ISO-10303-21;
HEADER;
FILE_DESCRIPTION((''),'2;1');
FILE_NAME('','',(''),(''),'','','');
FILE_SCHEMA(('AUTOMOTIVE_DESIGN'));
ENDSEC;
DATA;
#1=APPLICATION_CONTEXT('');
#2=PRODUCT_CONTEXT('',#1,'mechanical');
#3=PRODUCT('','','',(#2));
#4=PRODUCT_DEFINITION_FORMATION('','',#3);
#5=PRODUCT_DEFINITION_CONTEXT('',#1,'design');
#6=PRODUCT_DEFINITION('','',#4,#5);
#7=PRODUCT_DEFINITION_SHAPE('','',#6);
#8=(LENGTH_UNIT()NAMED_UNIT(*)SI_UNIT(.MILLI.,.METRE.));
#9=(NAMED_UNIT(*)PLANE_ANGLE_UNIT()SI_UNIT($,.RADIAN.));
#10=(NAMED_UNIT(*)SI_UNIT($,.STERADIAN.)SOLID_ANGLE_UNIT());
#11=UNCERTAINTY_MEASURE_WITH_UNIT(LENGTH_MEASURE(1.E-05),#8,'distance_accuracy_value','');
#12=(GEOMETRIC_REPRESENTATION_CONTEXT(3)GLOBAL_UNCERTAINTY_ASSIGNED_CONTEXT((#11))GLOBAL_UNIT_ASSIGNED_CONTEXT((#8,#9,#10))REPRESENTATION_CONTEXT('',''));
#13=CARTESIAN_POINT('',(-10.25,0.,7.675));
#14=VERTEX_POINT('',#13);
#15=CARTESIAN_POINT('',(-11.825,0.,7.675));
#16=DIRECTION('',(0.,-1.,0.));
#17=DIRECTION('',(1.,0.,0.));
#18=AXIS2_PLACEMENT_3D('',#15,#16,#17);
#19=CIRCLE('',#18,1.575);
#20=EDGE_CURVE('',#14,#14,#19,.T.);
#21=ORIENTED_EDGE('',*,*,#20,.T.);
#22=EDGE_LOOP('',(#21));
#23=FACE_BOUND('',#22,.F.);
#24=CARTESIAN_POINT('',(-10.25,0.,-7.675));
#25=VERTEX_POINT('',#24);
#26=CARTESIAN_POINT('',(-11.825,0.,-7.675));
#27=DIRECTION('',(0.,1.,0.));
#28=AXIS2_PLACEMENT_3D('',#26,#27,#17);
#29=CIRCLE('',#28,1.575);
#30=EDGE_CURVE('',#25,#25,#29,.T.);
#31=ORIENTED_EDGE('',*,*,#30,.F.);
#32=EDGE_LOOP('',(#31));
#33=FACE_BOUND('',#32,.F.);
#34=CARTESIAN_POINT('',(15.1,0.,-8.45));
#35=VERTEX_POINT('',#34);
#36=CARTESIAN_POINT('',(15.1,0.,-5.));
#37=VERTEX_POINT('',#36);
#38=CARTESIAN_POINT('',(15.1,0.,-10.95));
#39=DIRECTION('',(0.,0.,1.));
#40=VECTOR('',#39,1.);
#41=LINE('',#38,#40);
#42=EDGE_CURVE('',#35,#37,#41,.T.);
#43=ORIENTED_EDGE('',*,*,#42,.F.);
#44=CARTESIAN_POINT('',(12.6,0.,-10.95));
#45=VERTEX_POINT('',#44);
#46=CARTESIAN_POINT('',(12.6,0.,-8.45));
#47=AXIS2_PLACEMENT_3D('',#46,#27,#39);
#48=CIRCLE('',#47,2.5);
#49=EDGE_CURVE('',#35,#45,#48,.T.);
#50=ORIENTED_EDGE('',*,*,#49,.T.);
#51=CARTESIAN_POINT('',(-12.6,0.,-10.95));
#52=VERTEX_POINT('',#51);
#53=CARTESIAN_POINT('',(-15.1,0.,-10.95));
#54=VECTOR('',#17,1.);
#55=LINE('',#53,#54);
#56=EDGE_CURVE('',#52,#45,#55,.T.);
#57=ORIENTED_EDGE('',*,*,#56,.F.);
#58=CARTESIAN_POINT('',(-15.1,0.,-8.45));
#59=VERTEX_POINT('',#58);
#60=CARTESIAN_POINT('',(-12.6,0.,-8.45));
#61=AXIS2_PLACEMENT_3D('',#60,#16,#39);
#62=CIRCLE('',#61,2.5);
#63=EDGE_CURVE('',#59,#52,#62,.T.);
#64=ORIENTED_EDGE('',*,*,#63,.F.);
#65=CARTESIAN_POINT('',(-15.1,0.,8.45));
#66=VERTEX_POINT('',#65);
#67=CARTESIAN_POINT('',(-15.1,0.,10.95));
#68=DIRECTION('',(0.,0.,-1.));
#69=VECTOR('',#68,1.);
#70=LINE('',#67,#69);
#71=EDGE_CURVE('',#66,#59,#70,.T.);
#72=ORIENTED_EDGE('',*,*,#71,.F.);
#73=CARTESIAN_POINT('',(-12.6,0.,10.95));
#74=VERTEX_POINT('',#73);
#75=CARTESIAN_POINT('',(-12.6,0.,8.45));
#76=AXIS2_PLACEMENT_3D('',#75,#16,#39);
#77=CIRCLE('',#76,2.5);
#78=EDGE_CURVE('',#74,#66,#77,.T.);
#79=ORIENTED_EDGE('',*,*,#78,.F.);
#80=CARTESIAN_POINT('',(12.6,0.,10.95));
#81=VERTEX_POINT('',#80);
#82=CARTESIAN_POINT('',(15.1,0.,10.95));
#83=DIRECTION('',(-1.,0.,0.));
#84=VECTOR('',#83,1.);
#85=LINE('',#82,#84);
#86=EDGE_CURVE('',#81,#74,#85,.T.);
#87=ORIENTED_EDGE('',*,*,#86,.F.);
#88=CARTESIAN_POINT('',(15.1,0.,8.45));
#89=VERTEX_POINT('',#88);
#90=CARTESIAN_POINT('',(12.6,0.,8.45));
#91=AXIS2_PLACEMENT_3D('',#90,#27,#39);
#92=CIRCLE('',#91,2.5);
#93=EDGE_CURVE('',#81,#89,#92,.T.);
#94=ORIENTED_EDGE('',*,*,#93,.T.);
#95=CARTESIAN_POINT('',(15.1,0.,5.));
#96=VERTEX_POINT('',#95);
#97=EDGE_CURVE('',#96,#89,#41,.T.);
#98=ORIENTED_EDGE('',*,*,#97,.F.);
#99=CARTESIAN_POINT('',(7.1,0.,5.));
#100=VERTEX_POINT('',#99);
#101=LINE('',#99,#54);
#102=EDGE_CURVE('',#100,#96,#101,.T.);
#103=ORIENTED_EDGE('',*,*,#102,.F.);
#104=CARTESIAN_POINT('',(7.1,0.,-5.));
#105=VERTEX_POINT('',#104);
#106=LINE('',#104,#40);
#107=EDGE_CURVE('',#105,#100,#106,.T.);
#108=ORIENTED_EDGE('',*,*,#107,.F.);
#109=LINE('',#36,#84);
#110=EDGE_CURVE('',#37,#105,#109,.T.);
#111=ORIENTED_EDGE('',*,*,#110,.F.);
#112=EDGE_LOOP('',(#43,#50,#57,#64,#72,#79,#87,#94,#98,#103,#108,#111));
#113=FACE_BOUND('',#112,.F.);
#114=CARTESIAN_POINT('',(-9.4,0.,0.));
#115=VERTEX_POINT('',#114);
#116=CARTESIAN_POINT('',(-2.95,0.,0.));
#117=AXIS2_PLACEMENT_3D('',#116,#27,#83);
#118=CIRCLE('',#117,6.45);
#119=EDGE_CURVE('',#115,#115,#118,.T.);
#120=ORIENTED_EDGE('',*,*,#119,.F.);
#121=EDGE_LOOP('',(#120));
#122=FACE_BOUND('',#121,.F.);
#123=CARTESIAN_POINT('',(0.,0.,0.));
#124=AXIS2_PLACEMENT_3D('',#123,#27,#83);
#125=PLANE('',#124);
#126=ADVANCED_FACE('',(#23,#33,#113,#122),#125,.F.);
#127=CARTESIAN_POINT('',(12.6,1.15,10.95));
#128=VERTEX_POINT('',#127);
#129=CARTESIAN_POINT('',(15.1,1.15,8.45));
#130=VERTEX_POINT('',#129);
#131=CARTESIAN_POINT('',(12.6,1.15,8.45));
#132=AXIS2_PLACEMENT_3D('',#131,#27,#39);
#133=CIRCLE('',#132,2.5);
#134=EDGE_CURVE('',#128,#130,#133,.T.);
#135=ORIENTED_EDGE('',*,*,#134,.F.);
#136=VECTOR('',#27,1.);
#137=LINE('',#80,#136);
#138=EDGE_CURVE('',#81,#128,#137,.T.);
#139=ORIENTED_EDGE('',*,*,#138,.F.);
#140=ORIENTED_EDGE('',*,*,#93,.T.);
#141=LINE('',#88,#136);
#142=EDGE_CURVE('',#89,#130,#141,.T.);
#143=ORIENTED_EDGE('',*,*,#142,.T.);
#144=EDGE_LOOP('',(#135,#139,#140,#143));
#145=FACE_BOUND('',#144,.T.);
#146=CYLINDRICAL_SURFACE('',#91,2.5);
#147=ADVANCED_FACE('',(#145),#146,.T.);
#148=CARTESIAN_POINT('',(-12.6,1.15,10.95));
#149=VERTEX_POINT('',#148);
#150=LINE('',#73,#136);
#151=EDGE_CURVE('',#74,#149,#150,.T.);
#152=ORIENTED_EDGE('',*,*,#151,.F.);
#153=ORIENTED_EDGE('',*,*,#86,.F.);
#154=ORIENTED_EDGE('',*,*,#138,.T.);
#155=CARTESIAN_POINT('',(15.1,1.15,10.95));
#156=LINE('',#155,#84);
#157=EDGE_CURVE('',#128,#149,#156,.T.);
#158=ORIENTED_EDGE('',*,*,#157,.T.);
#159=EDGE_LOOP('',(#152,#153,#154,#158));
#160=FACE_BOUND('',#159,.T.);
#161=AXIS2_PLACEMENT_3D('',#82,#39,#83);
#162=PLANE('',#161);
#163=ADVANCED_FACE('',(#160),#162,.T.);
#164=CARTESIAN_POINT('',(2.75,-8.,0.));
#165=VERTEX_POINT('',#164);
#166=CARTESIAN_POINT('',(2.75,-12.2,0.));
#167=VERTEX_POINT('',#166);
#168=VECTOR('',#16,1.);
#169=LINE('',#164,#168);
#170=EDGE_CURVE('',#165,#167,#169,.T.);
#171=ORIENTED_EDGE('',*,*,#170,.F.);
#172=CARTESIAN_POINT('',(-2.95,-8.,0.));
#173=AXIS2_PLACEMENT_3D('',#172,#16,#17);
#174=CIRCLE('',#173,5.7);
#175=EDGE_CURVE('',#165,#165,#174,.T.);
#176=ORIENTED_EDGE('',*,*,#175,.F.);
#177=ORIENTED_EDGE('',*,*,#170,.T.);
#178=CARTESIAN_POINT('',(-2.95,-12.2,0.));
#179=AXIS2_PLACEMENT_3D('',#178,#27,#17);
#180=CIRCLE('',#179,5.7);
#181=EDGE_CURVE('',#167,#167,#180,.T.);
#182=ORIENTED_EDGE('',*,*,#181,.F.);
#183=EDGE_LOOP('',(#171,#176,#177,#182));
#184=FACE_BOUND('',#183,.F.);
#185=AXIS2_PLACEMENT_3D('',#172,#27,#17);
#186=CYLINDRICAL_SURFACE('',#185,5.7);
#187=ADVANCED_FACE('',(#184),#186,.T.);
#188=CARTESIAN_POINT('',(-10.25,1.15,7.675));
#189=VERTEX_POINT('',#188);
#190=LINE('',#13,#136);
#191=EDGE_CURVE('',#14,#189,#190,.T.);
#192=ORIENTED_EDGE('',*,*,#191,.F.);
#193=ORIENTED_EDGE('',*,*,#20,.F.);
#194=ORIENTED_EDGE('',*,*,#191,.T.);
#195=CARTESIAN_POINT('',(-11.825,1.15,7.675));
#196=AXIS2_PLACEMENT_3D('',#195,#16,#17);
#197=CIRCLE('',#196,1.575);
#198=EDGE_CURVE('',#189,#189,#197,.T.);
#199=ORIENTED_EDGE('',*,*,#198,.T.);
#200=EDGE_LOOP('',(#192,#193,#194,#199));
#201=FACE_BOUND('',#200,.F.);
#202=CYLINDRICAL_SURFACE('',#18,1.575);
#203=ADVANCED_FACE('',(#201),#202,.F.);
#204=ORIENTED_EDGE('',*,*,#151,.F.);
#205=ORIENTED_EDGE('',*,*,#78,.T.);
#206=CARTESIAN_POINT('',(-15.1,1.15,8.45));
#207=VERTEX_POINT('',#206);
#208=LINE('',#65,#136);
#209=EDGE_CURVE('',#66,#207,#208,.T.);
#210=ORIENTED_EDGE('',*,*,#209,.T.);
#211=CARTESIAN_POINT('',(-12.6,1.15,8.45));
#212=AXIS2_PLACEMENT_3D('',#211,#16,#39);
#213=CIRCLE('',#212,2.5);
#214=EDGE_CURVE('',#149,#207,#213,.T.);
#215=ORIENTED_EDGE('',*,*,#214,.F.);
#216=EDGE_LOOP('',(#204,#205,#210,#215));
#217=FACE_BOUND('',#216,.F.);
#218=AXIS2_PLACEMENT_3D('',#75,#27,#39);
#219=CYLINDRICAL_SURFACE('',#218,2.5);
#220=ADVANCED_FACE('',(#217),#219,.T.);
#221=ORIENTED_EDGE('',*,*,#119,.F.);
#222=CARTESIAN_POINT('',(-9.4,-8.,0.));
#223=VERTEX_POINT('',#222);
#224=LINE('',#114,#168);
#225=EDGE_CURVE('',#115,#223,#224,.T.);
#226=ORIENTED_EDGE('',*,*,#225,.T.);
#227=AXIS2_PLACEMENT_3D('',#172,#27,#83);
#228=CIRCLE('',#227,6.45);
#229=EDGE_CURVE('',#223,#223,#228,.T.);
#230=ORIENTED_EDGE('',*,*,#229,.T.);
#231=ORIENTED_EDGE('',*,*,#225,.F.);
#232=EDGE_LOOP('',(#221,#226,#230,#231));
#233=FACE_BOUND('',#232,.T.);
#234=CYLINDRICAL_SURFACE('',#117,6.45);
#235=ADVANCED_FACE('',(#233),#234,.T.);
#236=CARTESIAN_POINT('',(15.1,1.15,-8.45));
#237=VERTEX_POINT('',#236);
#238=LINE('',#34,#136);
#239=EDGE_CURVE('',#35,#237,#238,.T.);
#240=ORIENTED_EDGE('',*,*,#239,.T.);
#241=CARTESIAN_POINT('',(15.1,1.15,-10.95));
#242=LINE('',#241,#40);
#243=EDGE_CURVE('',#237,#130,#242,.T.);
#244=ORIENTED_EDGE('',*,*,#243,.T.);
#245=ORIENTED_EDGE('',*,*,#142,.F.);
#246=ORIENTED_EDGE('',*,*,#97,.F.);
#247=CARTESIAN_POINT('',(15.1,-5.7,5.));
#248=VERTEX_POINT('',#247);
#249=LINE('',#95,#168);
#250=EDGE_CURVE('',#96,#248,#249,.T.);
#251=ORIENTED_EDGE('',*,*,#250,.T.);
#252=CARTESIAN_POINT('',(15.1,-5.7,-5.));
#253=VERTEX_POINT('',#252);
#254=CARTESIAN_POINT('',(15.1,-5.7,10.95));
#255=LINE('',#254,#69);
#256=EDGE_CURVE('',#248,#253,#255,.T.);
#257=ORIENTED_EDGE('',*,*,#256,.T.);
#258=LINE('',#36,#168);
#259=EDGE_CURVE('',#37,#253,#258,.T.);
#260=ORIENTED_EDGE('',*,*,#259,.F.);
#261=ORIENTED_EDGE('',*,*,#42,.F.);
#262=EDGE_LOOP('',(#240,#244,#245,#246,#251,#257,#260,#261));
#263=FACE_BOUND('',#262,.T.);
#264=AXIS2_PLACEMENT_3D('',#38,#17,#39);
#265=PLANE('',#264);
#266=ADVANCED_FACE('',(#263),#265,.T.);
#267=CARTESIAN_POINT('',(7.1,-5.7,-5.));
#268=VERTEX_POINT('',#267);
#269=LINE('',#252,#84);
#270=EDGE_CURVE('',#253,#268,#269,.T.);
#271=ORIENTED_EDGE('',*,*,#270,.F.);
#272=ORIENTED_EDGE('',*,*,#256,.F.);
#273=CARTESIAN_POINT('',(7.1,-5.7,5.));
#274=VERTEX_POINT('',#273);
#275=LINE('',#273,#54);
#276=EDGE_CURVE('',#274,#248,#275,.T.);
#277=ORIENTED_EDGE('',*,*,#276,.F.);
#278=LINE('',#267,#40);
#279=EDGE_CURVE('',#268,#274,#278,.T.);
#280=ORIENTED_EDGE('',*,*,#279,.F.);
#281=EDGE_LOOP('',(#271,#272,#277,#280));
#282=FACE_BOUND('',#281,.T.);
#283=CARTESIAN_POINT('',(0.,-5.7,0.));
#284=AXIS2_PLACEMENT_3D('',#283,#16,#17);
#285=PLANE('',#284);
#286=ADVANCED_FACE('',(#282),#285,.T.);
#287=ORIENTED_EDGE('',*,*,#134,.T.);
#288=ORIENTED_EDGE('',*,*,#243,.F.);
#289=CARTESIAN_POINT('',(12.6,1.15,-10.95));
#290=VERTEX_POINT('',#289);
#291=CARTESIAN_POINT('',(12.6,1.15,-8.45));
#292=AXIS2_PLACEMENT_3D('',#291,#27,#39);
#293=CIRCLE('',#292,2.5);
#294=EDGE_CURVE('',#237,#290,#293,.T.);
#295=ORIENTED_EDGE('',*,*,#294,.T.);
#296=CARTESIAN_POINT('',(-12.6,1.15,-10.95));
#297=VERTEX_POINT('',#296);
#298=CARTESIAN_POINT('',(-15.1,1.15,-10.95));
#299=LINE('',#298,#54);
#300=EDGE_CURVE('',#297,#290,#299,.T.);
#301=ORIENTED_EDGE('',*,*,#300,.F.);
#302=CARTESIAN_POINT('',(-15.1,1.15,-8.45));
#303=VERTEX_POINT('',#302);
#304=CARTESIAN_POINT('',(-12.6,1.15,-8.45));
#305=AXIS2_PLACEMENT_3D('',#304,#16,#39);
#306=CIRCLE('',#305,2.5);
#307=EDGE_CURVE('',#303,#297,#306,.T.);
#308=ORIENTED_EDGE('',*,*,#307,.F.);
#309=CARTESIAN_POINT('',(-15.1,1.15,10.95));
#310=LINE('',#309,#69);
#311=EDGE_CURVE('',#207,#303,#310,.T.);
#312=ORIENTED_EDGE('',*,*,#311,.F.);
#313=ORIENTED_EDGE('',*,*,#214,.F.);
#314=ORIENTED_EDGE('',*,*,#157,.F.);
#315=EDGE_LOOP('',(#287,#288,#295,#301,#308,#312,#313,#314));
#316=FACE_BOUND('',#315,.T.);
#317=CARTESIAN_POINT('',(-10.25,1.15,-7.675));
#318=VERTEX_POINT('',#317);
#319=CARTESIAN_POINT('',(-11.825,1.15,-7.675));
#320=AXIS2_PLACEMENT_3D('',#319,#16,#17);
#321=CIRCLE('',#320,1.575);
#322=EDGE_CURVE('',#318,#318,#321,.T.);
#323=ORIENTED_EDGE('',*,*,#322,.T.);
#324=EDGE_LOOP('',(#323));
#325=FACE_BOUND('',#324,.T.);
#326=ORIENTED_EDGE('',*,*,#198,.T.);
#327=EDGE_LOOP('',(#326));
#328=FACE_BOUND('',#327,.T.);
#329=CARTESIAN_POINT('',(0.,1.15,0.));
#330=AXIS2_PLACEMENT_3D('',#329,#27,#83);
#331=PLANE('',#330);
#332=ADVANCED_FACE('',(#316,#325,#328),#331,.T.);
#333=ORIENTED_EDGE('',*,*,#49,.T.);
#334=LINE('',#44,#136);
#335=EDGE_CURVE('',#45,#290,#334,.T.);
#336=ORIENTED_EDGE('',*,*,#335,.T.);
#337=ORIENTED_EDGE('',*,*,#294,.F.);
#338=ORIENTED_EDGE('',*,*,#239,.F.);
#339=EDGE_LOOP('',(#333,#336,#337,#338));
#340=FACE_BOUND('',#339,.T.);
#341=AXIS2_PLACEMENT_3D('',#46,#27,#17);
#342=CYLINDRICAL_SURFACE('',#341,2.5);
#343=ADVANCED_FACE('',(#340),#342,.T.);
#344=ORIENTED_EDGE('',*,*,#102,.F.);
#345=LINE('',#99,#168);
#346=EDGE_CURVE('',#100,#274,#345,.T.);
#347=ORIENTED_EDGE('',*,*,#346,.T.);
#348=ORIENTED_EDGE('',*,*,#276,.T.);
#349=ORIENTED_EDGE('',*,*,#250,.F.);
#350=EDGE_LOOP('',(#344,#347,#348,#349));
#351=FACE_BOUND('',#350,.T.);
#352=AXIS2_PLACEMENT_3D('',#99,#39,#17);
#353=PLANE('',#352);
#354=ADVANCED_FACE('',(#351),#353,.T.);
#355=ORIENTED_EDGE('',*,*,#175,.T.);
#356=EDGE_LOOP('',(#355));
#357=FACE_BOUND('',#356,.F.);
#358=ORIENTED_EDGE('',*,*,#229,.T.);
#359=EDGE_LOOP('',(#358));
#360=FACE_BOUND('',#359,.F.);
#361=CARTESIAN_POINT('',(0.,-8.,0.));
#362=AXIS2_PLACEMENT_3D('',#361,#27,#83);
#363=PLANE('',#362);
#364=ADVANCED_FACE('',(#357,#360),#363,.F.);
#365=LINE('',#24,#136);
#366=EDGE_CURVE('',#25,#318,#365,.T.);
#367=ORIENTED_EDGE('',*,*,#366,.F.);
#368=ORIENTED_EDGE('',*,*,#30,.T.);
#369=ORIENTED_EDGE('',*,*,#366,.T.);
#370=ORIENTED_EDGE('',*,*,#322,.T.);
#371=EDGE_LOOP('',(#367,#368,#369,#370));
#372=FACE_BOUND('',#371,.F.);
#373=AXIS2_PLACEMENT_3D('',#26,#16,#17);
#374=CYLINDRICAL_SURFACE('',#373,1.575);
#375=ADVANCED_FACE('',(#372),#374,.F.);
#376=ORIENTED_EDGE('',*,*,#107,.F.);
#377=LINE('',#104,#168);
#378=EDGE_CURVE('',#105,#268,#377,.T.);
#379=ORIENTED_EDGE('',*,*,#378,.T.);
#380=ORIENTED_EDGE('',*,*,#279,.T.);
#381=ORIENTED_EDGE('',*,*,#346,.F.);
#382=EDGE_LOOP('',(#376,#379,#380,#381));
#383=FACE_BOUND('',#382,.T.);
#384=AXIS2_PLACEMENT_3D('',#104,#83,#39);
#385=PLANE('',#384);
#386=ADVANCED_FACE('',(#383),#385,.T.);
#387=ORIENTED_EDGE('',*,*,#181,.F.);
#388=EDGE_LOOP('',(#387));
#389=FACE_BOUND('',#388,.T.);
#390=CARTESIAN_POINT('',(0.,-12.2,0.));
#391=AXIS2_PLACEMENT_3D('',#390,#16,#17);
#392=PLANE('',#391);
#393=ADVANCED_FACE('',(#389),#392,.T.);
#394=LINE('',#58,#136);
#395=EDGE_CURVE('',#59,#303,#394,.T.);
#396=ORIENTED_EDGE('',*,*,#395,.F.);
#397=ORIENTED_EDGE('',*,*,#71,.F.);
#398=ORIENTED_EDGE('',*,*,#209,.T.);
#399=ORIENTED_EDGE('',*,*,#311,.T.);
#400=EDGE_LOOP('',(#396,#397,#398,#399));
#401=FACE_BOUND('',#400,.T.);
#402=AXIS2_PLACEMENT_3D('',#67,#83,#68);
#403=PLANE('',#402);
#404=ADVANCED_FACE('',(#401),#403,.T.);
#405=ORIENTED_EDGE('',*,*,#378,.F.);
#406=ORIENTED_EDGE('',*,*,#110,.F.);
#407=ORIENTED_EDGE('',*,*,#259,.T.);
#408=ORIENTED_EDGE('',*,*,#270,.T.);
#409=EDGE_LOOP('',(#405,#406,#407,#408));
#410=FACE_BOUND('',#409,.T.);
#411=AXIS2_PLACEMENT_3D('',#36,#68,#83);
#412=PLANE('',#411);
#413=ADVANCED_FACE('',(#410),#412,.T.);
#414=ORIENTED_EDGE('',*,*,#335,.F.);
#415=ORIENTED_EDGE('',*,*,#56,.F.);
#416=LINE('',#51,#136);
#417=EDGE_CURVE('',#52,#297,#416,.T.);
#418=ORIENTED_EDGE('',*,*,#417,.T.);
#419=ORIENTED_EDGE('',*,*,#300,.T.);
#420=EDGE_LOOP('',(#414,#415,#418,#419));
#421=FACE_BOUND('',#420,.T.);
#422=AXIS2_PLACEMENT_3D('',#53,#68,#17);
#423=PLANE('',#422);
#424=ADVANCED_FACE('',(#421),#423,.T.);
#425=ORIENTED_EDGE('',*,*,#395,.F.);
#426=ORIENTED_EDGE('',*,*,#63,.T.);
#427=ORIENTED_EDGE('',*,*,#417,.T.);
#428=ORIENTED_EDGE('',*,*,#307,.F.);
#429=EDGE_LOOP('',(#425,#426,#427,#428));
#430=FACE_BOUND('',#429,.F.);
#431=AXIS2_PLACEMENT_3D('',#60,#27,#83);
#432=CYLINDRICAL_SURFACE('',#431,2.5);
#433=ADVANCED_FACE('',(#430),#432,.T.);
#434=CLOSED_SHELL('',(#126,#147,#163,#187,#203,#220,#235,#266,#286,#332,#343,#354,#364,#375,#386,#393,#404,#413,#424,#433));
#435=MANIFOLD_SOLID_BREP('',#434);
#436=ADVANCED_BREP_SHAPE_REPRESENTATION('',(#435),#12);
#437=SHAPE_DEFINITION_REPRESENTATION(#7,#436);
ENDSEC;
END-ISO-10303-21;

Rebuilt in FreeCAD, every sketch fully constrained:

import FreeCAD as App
import Part
import Sketcher
from FreeCAD import Vector
Q = App.Units.Quantity


def edges_at(feature, points):
    """Names of the edges that pass closest to the given points."""
    edges = feature.Shape.Edges
    near = lambda p: min(range(len(edges)), key=lambda i: edges[i].distToShape(Part.Vertex(*p))[0])
    return sorted({f"Edge{near(p) + 1}" for p in points})


def add_polygon(sketch, points):
    """Adds a closed chain of lines whose ends are joined by coincident constraints."""
    first, n = sketch.GeometryCount, len(points)
    for a, b in zip(points, points[1:] + points[:1]):
        sketch.addGeometry(Part.LineSegment(App.Vector(*a, 0), App.Vector(*b, 0)), False)
    for i in range(n):
        sketch.addConstraint(Sketcher.Constraint("Coincident", first + i, 2, first + (i + 1) % n, 1))

doc = App.newDocument("Part")
params = doc.addObject("Spreadsheet::Sheet", "Params")
for row, (alias, value) in enumerate([
    ("sketch1_width", "30.2 mm"),
    ("sketch1_height", "21.9 mm"),
    ("pad1_length", "1.15 mm"),
    ("sketch2_diameter", "12.9 mm"),
    ("pad2_length", "8 mm"),
    ("sketch3_diameter", "11.4 mm"),
    ("pad3_length", "4.2 mm"),
    ("sketch4_width", "8 mm"),
    ("sketch4_height", "10 mm"),
    ("pad4_length", "5.7 mm"),
    ("sketch5_diameter", "3.15 mm"),
    ("fillet_radius", "2.5 mm"),
], start=1):
    params.set(f"A{row}", alias)
    params.set(f"B{row}", "=" + value)
    params.setAlias(f"B{row}", alias)

body = doc.addObject("PartDesign::Body", "Body")

# Sketch on XZ plane
sketch1 = body.newObject("Sketcher::SketchObject", "Sketch")
sketch1.AttachmentSupport = (doc.getObject("XZ_Plane"), [""])
sketch1.MapMode = "FlatFace"
add_polygon(sketch1, [(-15, 11), (15, 11), (15, -11), (-15, -11)])  # lines 0-3
sketch1.addConstraint([
    Sketcher.Constraint("Horizontal", 0),
    Sketcher.Constraint("Vertical", 1),
    Sketcher.Constraint("Horizontal", 2),
    Sketcher.Constraint("Vertical", 3),
    Sketcher.Constraint("Symmetric", 0, 2, 2, 2, -1, 1),
    Sketcher.Constraint("DistanceX", 0, 1, 0, 2, Q("30.2 mm")),
    Sketcher.Constraint("DistanceY", 1, 2, 1, 1, Q("21.9 mm")),
])
sketch1.setExpression("Constraints[9]", "Params.sketch1_width")
sketch1.setExpression("Constraints[10]", "Params.sketch1_height")
pad1 = body.newObject("PartDesign::Pad", "Pad")
pad1.Profile = sketch1
pad1.setExpression("Length", "Params.pad1_length")
pad1.Reversed = True

# Sketch on XZ plane
sketch2 = body.newObject("Sketcher::SketchObject", "Sketch001")
sketch2.AttachmentSupport = (doc.getObject("XZ_Plane"), [""])
sketch2.MapMode = "FlatFace"
sketch2.addGeometry(Part.Circle(Vector(-3, 0, 0), Vector(0, 0, 1), 6), False)
sketch2.addConstraint([
    Sketcher.Constraint("PointOnObject", 0, 3, -1),
    Sketcher.Constraint("Diameter", 0, Q("12.9 mm")),
    Sketcher.Constraint("DistanceX", 0, 3, -1, 1, Q("2.95 mm")),
])
sketch2.setExpression("Constraints[1]", "Params.sketch2_diameter")
pad2 = body.newObject("PartDesign::Pad", "Pad001")
pad2.Profile = sketch2
pad2.setExpression("Length", "Params.pad2_length")

# Sketch on XZ plane
sketch3 = body.newObject("Sketcher::SketchObject", "Sketch002")
sketch3.AttachmentSupport = (doc.getObject("XZ_Plane"), [""])
sketch3.MapMode = "FlatFace"
sketch3.AttachmentOffset = App.Placement(Vector(0, 0, 8), App.Rotation())
sketch3.addGeometry(Part.Circle(Vector(-3, 0, 0), Vector(0, 0, 1), 6), False)
sketch3.addConstraint([
    Sketcher.Constraint("PointOnObject", 0, 3, -1),
    Sketcher.Constraint("Diameter", 0, Q("11.4 mm")),
    Sketcher.Constraint("DistanceX", 0, 3, -1, 1, Q("2.95 mm")),
])
sketch3.setExpression("Constraints[1]", "Params.sketch3_diameter")
pad3 = body.newObject("PartDesign::Pad", "Pad002")
pad3.Profile = sketch3
pad3.setExpression("Length", "Params.pad3_length")

# Sketch on XZ plane
sketch4 = body.newObject("Sketcher::SketchObject", "Sketch003")
sketch4.AttachmentSupport = (doc.getObject("XZ_Plane"), [""])
sketch4.MapMode = "FlatFace"
add_polygon(sketch4, [(7, -5), (15, -5), (15, 5), (7, 5)])  # lines 0-3
sketch4.addConstraint([
    Sketcher.Constraint("Horizontal", 0),
    Sketcher.Constraint("Vertical", 1),
    Sketcher.Constraint("Horizontal", 2),
    Sketcher.Constraint("Vertical", 3),
    Sketcher.Constraint("DistanceX", 0, 1, 0, 2, Q("8 mm")),
    Sketcher.Constraint("DistanceY", 1, 1, 1, 2, Q("10 mm")),
    Sketcher.Constraint("DistanceY", 0, 2, -1, 1, Q("5 mm")),
    Sketcher.Constraint("DistanceX", -1, 1, 0, 2, Q("15.1 mm")),
])
sketch4.setExpression("Constraints[8]", "Params.sketch4_width")
sketch4.setExpression("Constraints[9]", "Params.sketch4_height")
pad4 = body.newObject("PartDesign::Pad", "Pad003")
pad4.Profile = sketch4
pad4.setExpression("Length", "Params.pad4_length")

# Sketch on XZ plane
sketch5 = body.newObject("Sketcher::SketchObject", "Sketch004")
sketch5.AttachmentSupport = (doc.getObject("XZ_Plane"), [""])
sketch5.MapMode = "FlatFace"
sketch5.addGeometry([
    Part.Circle(Vector(-11.8, -7.7, 0), Vector(0, 0, 1), 1.6),
    Part.Circle(Vector(-11.8, 7.7, 0), Vector(0, 0, 1), 1.6),
], False)
sketch5.addConstraint([
    Sketcher.Constraint("Equal", 0, 1),
    Sketcher.Constraint("Symmetric", 0, 3, 1, 3, -1),
    Sketcher.Constraint("Diameter", 0, Q("3.15 mm")),
    Sketcher.Constraint("DistanceY", 0, 3, 1, 3, Q("15.35 mm")),
    Sketcher.Constraint("DistanceX", 0, 3, -1, 1, Q("11.825 mm")),
])
sketch5.setExpression("Constraints[2]", "Params.sketch5_diameter")
pocket1 = body.newObject("PartDesign::Pocket", "Pocket")
pocket1.Profile = sketch5
pocket1.Type = "ThroughAll"
doc.recompute()

fillet = body.newObject("PartDesign::Fillet", "Fillet")
fillet.Base = (pocket1, edges_at(pocket1, [
    (-15.1, 0.575, -10.95),
    (-15.1, 0.575, 10.95),
    (15.1, 0.575, -10.95),
    (15.1, 0.575, 10.95),
]))
fillet.setExpression("Radius", "Params.fillet_radius")

doc.recompute()
